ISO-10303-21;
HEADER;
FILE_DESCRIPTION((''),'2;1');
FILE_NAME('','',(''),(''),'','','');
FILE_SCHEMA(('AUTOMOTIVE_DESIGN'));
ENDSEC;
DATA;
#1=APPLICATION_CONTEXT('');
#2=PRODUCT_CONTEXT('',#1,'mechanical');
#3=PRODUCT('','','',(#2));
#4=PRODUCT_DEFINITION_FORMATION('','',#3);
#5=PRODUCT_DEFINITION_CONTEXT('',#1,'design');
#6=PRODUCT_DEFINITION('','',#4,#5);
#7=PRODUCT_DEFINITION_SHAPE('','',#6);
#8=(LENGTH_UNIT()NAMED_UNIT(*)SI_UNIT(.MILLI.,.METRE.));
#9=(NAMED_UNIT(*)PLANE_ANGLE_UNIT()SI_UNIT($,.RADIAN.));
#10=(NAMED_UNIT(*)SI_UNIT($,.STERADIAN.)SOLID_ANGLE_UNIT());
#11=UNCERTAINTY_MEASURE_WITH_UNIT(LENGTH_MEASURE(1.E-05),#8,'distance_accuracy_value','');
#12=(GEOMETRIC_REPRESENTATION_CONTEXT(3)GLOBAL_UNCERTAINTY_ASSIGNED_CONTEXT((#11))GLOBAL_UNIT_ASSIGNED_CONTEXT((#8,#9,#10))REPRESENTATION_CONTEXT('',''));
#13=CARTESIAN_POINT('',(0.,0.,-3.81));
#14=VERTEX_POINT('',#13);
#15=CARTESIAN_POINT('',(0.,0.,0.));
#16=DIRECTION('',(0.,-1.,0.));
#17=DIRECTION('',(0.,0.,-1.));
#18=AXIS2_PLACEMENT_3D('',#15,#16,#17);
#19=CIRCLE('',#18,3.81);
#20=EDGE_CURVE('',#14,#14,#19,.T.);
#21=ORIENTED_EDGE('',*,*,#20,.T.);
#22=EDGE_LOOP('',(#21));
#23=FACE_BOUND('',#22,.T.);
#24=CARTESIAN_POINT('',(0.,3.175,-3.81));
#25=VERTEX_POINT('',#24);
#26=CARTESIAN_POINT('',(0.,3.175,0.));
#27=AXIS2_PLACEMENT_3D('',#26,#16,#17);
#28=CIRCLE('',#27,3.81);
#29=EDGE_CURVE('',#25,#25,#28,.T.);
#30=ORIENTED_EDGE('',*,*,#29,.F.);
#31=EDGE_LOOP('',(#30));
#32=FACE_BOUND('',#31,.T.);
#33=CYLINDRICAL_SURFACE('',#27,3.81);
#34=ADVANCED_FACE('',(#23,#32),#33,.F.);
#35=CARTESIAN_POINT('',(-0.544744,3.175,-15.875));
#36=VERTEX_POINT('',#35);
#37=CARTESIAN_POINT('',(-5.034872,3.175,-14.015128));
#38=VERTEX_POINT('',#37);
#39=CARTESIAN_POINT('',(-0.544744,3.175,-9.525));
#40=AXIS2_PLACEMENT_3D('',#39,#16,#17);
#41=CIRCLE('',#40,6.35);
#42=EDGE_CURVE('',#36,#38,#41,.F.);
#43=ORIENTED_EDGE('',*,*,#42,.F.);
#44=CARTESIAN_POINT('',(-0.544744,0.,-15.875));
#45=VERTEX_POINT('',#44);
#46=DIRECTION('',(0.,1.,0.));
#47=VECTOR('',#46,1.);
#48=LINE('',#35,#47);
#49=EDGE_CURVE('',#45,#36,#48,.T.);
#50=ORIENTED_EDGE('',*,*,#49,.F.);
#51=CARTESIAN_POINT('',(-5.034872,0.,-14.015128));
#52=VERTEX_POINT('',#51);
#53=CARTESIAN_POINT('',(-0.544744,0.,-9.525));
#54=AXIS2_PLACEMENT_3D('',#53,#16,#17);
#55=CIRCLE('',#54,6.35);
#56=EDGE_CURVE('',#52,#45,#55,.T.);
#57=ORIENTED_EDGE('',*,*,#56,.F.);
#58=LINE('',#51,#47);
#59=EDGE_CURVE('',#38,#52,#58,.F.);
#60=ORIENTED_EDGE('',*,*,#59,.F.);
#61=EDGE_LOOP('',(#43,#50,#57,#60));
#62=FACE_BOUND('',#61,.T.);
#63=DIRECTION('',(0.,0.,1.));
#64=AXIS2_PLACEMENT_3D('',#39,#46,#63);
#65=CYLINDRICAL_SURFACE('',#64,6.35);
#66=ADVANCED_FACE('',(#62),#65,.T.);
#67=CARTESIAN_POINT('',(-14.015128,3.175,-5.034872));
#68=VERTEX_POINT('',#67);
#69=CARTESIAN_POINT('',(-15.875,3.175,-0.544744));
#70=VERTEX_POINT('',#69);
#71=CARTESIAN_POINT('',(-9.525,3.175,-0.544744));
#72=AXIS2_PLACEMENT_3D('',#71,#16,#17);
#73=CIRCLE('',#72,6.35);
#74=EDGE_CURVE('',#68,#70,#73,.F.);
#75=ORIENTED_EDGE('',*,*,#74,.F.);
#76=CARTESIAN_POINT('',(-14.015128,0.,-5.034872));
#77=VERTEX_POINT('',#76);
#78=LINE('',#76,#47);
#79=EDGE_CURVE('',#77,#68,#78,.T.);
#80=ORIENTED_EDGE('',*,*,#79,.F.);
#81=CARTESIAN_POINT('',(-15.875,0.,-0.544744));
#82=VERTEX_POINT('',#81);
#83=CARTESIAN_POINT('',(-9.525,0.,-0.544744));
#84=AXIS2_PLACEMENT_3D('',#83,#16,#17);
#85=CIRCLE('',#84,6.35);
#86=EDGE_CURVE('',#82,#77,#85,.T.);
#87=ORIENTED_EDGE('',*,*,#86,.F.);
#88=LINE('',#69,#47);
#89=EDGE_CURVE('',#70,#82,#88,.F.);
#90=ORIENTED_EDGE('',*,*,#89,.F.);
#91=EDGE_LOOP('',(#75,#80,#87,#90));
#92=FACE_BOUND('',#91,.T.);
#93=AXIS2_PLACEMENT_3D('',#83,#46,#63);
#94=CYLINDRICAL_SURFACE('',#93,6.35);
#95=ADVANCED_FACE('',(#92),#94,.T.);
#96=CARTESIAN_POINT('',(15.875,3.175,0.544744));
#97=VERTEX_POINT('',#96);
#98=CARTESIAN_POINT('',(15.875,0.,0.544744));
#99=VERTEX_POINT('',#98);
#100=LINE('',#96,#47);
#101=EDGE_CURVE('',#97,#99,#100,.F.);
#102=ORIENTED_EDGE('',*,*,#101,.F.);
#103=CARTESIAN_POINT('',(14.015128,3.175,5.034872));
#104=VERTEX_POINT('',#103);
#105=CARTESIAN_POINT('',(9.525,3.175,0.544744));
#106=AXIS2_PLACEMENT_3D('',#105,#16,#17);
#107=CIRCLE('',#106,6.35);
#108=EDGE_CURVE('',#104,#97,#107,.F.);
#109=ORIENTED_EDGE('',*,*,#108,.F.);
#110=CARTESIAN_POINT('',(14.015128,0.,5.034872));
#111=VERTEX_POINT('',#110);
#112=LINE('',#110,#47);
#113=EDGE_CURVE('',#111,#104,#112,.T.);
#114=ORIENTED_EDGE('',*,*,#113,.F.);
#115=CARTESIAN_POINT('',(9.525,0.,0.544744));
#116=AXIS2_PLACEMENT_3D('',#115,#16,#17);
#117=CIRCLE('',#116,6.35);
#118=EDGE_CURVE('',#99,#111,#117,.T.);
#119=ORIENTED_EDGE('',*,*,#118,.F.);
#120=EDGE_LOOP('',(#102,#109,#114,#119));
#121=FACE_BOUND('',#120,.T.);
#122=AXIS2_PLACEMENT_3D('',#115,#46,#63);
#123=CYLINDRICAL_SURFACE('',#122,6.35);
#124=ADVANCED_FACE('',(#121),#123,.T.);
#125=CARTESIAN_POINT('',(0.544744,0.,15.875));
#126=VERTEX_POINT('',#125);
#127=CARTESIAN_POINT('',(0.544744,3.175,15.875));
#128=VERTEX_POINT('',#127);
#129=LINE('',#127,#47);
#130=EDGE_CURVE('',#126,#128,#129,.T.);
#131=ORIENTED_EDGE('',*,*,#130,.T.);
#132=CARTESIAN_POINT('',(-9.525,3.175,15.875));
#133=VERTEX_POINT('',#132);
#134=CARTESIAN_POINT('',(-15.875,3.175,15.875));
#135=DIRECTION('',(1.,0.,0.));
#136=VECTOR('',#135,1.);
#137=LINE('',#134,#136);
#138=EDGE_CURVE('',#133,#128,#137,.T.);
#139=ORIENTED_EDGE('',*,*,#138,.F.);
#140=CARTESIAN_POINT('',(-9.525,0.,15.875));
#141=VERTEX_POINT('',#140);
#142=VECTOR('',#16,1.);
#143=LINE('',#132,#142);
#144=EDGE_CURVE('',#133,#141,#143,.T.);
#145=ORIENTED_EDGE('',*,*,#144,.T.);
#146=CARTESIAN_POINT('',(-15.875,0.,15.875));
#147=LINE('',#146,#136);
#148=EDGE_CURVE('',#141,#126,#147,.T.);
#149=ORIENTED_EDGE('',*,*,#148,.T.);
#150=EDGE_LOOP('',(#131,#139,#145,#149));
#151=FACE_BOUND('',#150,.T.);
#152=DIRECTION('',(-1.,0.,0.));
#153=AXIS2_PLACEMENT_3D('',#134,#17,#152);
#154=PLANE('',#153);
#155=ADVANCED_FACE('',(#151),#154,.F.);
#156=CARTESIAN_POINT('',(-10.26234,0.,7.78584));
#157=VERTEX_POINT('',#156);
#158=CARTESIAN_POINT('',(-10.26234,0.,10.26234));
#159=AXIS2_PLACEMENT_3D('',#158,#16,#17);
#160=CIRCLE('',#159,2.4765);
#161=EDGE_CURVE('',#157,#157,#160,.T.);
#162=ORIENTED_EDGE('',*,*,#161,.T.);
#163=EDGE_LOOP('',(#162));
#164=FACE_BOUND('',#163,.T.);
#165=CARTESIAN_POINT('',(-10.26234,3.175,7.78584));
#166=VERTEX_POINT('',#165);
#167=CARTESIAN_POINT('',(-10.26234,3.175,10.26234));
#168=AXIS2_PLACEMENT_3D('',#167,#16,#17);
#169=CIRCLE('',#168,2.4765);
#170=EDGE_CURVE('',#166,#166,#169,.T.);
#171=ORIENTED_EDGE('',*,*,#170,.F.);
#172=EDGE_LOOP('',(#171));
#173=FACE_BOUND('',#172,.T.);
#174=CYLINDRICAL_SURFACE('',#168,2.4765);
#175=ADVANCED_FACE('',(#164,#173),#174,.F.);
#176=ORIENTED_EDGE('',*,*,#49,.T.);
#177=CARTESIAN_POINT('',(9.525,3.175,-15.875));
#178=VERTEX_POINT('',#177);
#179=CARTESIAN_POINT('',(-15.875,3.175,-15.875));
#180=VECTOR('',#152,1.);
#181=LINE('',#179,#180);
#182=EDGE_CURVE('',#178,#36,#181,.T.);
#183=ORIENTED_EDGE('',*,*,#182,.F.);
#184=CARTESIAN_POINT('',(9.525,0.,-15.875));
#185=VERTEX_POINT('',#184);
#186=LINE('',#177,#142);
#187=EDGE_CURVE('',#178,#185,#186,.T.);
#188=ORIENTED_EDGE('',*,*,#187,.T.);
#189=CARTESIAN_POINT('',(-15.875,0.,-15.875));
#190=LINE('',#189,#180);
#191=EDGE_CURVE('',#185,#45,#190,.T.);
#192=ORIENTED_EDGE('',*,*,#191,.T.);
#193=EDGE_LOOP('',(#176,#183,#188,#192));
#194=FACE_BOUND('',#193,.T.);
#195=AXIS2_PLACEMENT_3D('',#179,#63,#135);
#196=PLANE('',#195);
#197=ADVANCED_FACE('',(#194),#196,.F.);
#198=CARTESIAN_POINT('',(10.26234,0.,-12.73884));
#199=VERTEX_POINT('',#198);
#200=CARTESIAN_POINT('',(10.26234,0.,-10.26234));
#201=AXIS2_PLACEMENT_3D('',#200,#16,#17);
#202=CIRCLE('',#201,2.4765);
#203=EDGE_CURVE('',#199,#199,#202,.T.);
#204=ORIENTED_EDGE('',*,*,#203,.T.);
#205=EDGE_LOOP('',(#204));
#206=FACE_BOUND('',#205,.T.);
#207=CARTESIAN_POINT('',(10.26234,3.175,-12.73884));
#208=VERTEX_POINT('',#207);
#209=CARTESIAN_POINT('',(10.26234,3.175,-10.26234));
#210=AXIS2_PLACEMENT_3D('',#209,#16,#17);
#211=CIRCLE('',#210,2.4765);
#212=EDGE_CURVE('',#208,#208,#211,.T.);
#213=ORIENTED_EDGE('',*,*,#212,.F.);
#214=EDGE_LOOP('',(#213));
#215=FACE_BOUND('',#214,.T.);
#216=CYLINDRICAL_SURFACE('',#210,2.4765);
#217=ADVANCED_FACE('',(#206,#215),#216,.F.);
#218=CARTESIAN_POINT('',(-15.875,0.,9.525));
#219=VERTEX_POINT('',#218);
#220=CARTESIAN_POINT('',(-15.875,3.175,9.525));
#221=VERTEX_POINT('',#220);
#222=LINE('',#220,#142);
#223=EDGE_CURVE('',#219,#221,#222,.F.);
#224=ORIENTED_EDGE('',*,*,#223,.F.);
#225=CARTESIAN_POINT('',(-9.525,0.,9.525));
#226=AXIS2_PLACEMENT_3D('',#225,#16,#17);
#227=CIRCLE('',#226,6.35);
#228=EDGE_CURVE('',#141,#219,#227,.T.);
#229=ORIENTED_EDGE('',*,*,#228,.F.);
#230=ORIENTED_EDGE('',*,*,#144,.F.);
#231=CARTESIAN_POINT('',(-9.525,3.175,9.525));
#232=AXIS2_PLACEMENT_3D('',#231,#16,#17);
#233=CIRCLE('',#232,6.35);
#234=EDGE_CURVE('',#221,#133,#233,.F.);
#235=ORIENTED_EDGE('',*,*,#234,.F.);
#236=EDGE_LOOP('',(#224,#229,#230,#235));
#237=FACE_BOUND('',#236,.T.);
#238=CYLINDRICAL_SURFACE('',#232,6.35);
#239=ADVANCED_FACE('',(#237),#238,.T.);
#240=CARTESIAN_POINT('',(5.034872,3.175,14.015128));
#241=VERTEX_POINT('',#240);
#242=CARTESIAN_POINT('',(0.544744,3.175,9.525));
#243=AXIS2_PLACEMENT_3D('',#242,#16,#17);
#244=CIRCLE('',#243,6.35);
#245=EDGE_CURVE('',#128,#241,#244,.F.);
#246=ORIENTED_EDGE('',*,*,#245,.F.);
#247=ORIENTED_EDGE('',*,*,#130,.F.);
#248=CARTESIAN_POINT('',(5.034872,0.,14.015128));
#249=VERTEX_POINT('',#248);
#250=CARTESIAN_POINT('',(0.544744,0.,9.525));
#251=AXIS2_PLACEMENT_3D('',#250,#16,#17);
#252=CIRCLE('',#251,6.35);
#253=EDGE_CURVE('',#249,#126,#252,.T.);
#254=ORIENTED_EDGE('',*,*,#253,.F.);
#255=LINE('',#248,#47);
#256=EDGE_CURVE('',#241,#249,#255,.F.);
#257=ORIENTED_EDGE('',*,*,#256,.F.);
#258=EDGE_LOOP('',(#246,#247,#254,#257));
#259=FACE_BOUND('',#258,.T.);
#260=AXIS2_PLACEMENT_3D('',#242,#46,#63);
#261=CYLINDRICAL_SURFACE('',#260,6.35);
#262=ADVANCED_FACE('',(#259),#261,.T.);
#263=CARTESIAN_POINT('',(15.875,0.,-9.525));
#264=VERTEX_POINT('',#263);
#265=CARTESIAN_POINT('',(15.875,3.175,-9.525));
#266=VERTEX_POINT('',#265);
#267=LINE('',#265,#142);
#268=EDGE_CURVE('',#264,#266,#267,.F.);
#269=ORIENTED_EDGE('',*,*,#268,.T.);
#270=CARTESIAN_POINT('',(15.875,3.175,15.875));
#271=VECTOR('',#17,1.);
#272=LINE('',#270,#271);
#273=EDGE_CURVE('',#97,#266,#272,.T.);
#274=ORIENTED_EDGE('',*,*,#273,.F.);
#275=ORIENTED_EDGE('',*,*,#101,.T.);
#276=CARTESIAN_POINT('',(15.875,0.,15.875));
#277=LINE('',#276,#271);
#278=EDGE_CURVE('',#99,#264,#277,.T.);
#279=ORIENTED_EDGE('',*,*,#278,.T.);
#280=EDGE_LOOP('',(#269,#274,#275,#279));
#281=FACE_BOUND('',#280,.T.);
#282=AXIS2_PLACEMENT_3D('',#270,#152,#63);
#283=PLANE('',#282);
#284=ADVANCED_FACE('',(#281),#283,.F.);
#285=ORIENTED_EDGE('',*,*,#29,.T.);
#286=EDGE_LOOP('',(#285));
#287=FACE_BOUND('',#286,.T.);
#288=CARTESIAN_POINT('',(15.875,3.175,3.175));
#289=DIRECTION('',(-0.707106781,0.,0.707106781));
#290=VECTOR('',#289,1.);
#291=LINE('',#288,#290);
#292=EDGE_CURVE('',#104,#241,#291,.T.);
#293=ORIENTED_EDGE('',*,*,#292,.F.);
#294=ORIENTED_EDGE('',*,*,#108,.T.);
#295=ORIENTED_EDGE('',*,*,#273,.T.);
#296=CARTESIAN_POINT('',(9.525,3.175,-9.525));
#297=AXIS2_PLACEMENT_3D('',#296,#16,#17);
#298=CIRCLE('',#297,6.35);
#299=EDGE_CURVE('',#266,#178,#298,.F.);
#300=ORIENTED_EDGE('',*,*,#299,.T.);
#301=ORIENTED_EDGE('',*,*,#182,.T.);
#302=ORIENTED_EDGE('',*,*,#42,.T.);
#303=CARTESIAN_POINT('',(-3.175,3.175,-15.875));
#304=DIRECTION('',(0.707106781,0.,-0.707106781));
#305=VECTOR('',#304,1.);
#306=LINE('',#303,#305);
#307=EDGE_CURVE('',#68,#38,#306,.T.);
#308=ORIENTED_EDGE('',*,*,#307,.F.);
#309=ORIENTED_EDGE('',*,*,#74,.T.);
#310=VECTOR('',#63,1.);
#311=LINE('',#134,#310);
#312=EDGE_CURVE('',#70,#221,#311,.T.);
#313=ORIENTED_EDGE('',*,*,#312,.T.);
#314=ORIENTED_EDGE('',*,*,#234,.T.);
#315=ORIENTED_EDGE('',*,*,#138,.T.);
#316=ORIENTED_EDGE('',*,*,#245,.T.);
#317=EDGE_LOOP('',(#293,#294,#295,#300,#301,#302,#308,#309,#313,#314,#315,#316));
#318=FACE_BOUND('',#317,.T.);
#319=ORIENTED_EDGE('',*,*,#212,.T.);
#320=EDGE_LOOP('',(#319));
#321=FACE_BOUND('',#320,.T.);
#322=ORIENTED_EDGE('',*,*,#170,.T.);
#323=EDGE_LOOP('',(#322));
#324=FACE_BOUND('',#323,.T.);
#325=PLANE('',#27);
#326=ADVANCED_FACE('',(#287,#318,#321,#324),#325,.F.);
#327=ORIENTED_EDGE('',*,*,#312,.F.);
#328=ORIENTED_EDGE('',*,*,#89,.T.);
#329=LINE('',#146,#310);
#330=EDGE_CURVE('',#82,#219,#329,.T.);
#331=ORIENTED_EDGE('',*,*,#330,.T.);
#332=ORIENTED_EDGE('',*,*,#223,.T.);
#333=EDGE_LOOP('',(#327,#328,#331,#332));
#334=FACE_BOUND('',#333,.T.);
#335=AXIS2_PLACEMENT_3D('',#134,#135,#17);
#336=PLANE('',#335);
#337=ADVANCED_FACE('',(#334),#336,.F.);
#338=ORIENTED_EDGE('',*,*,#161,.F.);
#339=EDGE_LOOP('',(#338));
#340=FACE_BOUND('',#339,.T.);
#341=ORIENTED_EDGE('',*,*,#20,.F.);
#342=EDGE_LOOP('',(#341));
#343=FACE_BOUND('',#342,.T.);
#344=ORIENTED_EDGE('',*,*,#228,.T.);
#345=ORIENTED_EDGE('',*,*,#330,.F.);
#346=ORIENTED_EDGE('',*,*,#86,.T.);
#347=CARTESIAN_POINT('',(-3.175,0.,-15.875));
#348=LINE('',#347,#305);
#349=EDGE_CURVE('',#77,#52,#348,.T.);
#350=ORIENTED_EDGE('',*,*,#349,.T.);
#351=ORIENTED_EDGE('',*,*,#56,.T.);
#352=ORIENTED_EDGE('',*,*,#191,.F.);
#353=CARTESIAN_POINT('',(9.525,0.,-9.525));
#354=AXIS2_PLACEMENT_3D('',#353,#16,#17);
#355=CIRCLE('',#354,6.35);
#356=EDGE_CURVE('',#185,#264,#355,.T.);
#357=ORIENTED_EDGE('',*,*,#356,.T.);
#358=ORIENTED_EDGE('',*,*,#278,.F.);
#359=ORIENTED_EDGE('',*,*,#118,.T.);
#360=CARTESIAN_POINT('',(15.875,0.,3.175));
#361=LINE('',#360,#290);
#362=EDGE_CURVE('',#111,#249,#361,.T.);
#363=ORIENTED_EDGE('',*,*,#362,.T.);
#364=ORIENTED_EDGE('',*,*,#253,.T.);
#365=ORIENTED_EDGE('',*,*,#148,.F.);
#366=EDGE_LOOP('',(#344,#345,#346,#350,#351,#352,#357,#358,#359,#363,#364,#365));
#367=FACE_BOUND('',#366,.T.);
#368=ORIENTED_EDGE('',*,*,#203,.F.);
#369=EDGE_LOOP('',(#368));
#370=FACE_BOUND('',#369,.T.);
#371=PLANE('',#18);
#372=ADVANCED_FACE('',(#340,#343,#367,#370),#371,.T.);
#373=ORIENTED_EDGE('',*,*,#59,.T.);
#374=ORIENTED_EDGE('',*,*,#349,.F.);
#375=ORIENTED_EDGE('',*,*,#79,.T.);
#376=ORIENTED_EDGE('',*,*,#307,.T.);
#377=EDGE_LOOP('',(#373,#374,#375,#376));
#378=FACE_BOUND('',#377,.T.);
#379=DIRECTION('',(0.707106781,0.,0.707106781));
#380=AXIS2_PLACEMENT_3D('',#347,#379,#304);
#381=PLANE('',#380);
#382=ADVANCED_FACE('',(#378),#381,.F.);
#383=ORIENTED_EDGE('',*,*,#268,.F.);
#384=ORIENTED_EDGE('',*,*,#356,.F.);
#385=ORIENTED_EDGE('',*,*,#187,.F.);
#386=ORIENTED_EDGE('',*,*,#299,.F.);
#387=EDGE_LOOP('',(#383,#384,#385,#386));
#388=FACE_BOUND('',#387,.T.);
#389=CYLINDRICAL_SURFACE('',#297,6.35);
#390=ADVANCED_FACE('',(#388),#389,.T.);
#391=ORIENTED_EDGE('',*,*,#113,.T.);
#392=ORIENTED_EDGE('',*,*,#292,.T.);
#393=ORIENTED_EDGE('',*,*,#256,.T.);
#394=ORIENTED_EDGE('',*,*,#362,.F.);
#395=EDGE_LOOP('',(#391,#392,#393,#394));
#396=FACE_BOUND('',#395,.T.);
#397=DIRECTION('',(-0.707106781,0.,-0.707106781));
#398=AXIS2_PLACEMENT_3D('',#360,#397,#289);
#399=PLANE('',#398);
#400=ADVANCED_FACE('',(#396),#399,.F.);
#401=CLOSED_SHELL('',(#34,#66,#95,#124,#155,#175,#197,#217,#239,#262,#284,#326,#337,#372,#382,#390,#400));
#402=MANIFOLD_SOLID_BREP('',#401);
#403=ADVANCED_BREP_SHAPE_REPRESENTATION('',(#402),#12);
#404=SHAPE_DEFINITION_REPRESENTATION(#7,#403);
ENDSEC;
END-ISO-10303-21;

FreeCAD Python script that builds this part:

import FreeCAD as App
import Part
import Sketcher
Q = App.Units.Quantity


def edges_at(feature, points):
    """Names of the edges that pass closest to the given points."""
    edges = feature.Shape.Edges
    near = lambda p: min(range(len(edges)), key=lambda i: edges[i].distToShape(Part.Vertex(*p))[0])
    return sorted({f"Edge{near(p) + 1}" for p in points})


def add_polygon(sketch, points):
    """Adds a closed chain of lines whose ends are joined by coincident constraints."""
    first, n = sketch.GeometryCount, len(points)
    for a, b in zip(points, points[1:] + points[:1]):
        sketch.addGeometry(Part.LineSegment(App.Vector(*a, 0), App.Vector(*b, 0)), False)
    for i in range(n):
        sketch.addConstraint(Sketcher.Constraint("Coincident", first + i, 2, first + (i + 1) % n, 1))

doc = App.newDocument("Part")
params = doc.addObject("Spreadsheet::Sheet", "Params")
for row, (alias, value) in enumerate([
    ("sketch1_width", "1.25 in"),
    ("pad1_length", "0.125 in"),
    ("sketch2_diameter", "0.195 in"),
    ("sketch3_diameter", "0.3 in"),
    ("sketch4_width", "0.5 in"),
    ("fillet_radius", "0.25 in"),
], start=1):
    params.set(f"A{row}", alias)
    params.set(f"B{row}", "=" + value)
    params.setAlias(f"B{row}", alias)

body = doc.addObject("PartDesign::Body", "Body")

sketch1 = body.newObject("Sketcher::SketchObject", "Sketch")
sketch1.AttachmentSupport = (doc.getObject("XZ_Plane"), [""])
sketch1.MapMode = "FlatFace"
add_polygon(sketch1, [(-16, -16), (-16, 16), (16, 16), (16, -16)])
sketch1.addConstraint([
    Sketcher.Constraint("Vertical", 0),
    Sketcher.Constraint("Horizontal", 1),
    Sketcher.Constraint("Vertical", 2),
    Sketcher.Constraint("Horizontal", 3),
    Sketcher.Constraint("Symmetric", 0, 2, 2, 2, -1, 1),
    Sketcher.Constraint("Equal", 3, 0),
    Sketcher.Constraint("DistanceX", 1, 1, 1, 2, Q("1.25 in")),
])
sketch1.setExpression("Constraints[10]", "Params.sketch1_width")
pad1 = body.newObject("PartDesign::Pad", "Pad")
pad1.Profile = sketch1
pad1.setExpression("Length", "Params.pad1_length")
pad1.Reversed = True

sketch2 = body.newObject("Sketcher::SketchObject", "Sketch001")
sketch2.AttachmentSupport = (doc.getObject("XZ_Plane"), [""])
sketch2.MapMode = "FlatFace"
sketch2.addGeometry([
    Part.Circle(App.Vector(-10.3, 10.3, 0), App.Vector(0, 0, 1), 2.5),
    Part.Circle(App.Vector(10.3, -10.3, 0), App.Vector(0, 0, 1), 2.5),
], False)
sketch2.addConstraint([
    Sketcher.Constraint("Equal", 0, 1),
    Sketcher.Constraint("Symmetric", 0, 3, 1, 3, -1, 1),
    Sketcher.Constraint("Diameter", 0, Q("0.195 in")),
    Sketcher.Constraint("DistanceX", 0, 3, -1, 1, 10.26234),
    Sketcher.Constraint("DistanceY", -1, 1, 0, 3, 10.26234),
])
sketch2.setExpression("Constraints[2]", "Params.sketch2_diameter")
pocket1 = body.newObject("PartDesign::Pocket", "Pocket")
pocket1.Profile = sketch2
pocket1.Type = "ThroughAll"

sketch3 = body.newObject("Sketcher::SketchObject", "Sketch002")
sketch3.AttachmentSupport = (doc.getObject("XZ_Plane"), [""])
sketch3.MapMode = "FlatFace"
sketch3.addGeometry(Part.Circle(App.Vector(0, 0, 0), App.Vector(0, 0, 1), 3.8), False)
sketch3.addConstraint([
    Sketcher.Constraint("Coincident", 0, 3, -1, 1),
    Sketcher.Constraint("Diameter", 0, Q("0.3 in")),
])
sketch3.setExpression("Constraints[1]", "Params.sketch3_diameter")
pocket2 = body.newObject("PartDesign::Pocket", "Pocket001")
pocket2.Profile = sketch3
pocket2.Type = "ThroughAll"

sketch4 = body.newObject("Sketcher::SketchObject", "Sketch003")
sketch4.AttachmentSupport = (doc.getObject("XZ_Plane"), [""])
sketch4.MapMode = "FlatFace"
sketch4.AttachmentOffset = App.Placement(App.Vector(0, 0, -0.125 * 25.4), App.Rotation())
add_polygon(sketch4, [(-3, -16), (-16, -16), (-16, -3)])
add_polygon(sketch4, [(16, 16), (16, 3), (3, 16)])
sketch4.addConstraint([
    Sketcher.Constraint("Horizontal", 0),
    Sketcher.Constraint("Vertical", 1),
    Sketcher.Constraint("Vertical", 3),
    Sketcher.Constraint("Horizontal", 5),
    Sketcher.Constraint("Symmetric", 1, 2, 3, 2, -1, 1),
    Sketcher.Constraint("Symmetric", 2, 2, 4, 2, -1, 1),
    Sketcher.Constraint("Equal", 5, 1),
    Sketcher.Constraint("DistanceX", 0, 2, 0, 1, Q("0.5 in")),
    Sketcher.Constraint("DistanceX", 2, 2, 3, 2, Q("0.75 in")),
    Sketcher.Constraint("DistanceY", 2, 2, 3, 2, Q("0.75 in")),
])
sketch4.setExpression("Constraints[13]", "Params.sketch4_width")
pocket3 = body.newObject("PartDesign::Pocket", "Pocket002")
pocket3.Profile = sketch4
pocket3.Type = "ThroughAll"
pocket3.Reversed = True
doc.recompute()

fillet = body.newObject("PartDesign::Fillet", "Fillet")
fillet.Base = (pocket3, edges_at(pocket3, [
    (-15.875, 1.587, -3.175),
    (-3.175, 1.587, -15.875),
    (3.175, 1.587, 15.875),
    (15.875, 1.587, 3.175),
    (-15.875, 1.587, 15.875),
    (15.875, 1.587, -15.875),
]))
fillet.setExpression("Radius", "Params.fillet_radius")

doc.recompute()
